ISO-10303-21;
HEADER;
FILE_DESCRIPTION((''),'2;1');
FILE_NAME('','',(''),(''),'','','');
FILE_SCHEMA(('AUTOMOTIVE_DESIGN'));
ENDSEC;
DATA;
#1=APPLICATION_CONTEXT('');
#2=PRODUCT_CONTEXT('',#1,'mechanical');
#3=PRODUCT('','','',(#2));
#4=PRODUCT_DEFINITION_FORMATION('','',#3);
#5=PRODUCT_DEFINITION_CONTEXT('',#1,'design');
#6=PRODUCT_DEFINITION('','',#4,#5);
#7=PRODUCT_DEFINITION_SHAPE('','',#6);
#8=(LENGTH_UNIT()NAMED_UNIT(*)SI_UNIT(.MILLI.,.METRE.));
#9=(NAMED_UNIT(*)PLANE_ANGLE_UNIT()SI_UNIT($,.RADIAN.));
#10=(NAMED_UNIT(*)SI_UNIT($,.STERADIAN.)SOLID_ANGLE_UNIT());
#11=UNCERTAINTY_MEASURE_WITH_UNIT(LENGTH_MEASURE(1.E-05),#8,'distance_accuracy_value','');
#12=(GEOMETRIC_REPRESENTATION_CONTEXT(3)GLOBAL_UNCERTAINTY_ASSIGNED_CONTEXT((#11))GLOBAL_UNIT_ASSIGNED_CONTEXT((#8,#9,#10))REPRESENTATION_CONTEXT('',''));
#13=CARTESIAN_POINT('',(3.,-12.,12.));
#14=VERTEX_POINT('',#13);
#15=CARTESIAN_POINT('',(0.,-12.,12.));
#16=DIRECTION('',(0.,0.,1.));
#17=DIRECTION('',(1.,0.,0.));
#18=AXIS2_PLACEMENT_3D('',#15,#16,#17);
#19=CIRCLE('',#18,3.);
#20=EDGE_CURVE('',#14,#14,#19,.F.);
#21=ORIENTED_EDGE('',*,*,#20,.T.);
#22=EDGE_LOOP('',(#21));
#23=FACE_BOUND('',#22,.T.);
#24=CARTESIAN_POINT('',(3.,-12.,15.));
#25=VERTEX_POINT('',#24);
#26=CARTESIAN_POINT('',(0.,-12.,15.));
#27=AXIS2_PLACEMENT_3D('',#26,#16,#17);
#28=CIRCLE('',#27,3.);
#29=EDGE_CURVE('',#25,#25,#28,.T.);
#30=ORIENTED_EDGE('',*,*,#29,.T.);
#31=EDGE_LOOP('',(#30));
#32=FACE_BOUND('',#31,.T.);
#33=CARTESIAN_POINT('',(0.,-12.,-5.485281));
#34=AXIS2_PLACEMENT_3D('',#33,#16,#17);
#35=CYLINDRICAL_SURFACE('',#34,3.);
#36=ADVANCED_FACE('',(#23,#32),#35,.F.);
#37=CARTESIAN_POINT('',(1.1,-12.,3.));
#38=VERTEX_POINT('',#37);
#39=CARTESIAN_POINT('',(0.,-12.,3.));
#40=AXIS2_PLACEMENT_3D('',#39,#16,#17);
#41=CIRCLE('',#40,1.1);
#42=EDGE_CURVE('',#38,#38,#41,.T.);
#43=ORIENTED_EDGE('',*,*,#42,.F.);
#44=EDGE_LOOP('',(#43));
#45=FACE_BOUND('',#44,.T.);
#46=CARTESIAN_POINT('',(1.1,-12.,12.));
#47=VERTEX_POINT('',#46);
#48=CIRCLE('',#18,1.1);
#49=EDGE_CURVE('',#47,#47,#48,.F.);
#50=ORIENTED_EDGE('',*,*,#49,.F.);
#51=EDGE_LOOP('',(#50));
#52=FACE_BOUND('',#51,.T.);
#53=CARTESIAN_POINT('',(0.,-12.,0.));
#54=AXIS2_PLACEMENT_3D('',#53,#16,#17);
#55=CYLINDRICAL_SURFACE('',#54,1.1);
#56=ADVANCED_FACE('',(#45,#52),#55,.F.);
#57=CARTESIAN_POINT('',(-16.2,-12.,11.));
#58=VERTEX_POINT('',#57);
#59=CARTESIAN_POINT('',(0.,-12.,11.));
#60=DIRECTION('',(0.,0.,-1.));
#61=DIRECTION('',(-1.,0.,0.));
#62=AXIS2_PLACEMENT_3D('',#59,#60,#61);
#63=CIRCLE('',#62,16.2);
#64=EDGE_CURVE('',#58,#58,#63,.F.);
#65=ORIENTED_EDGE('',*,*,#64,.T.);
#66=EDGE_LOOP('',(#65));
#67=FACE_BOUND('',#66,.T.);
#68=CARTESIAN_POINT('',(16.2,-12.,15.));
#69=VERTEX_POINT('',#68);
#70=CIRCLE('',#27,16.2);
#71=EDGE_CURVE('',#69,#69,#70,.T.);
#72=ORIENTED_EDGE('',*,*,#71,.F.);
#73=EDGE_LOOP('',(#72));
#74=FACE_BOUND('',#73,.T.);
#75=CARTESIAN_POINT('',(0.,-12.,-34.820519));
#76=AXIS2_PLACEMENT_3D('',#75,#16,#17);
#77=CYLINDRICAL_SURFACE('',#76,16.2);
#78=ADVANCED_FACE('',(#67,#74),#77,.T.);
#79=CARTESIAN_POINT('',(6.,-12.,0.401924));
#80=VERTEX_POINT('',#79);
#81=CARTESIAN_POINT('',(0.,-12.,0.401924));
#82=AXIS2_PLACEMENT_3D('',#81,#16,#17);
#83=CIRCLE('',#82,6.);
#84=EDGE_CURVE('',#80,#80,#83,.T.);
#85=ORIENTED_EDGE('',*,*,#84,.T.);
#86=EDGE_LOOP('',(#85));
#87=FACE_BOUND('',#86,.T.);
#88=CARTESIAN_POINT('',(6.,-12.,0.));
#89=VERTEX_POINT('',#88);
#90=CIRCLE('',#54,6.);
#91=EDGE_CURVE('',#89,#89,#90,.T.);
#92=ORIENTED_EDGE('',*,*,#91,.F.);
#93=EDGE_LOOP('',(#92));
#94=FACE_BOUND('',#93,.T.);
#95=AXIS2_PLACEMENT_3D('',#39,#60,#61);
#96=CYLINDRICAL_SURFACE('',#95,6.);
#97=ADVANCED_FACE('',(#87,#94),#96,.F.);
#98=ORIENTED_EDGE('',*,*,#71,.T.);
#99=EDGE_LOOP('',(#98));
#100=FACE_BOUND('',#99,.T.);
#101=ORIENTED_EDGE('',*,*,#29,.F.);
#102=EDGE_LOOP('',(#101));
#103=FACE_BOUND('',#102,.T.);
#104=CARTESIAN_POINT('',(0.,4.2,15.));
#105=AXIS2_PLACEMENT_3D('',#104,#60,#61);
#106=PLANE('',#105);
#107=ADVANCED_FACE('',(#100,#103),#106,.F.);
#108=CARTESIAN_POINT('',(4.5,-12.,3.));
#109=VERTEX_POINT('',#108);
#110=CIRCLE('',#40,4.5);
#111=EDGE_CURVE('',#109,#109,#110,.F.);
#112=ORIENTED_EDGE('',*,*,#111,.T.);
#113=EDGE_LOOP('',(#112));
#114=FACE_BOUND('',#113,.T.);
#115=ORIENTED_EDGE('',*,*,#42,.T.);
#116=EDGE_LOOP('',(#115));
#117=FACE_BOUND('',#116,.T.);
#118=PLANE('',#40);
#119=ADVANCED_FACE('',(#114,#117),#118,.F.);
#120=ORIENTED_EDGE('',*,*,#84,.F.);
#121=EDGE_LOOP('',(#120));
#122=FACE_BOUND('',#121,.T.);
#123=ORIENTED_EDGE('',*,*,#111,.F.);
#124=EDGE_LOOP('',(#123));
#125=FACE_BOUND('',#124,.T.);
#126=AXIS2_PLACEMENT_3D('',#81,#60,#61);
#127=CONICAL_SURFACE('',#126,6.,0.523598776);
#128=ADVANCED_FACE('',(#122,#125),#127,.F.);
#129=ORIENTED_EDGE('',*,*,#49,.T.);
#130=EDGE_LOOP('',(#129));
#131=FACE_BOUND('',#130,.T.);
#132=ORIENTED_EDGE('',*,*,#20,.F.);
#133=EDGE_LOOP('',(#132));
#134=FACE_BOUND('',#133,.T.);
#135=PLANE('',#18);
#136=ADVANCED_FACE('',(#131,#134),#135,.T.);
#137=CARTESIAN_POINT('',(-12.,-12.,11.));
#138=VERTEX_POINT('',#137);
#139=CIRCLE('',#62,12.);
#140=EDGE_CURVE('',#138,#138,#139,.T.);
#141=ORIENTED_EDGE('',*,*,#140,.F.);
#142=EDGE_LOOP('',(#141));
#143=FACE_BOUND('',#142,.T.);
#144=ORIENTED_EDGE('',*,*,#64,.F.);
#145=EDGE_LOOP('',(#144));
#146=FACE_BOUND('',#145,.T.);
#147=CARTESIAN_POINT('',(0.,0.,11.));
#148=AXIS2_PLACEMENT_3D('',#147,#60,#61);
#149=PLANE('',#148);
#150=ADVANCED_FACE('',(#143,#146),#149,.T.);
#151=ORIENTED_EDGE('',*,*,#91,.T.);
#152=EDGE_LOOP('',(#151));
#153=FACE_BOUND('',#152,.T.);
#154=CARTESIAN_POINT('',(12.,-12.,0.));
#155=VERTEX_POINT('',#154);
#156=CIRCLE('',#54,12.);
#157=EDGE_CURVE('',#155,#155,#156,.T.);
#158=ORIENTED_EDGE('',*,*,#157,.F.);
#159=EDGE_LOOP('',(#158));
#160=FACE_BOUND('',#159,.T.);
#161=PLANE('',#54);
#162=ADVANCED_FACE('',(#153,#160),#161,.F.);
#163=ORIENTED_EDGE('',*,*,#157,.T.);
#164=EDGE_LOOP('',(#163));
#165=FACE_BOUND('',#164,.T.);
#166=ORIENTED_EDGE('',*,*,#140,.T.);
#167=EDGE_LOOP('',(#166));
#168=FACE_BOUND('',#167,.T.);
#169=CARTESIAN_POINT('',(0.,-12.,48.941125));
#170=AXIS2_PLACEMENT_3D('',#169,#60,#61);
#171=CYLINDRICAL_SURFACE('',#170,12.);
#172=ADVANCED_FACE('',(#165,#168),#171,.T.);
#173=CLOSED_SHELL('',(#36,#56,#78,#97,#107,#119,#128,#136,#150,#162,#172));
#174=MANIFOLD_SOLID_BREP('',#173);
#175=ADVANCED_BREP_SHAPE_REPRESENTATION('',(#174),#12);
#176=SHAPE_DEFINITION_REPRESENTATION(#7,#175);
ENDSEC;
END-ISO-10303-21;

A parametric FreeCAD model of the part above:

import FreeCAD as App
import Part
import Sketcher


def edges_at(feature, points):
    """Names of the edges that pass closest to the given points."""
    edges = feature.Shape.Edges
    near = lambda p: min(range(len(edges)), key=lambda i: edges[i].distToShape(Part.Vertex(*p))[0])
    return sorted({f"Edge{near(p) + 1}" for p in points})

doc = App.newDocument("Part")
params = doc.addObject("Spreadsheet::Sheet", "Params")
for row, (alias, value) in enumerate([
    ("sketch1_diameter", "24 mm"),
    ("pad1_length", "15 mm"),
    ("sketch2_diameter", "32.4 mm"),
    ("pad2_length", "4 mm"),
    ("sketch3_diameter", "12 mm"),
    ("pocket1_length", "3 mm"),
    ("chamfer_size", "1.5 mm"),
    ("chamfer_size2", "2.598076 mm"),
    ("sketch4_diameter", "2.2 mm"),
    ("sketch5_diameter", "6 mm"),
    ("pocket3_length", "3 mm"),
], start=1):
    params.set(f"A{row}", alias)
    params.set(f"B{row}", "=" + value)
    params.setAlias(f"B{row}", alias)

body = doc.addObject("PartDesign::Body", "Body")

# Sketch on XY plane
sketch1 = body.newObject("Sketcher::SketchObject", "Sketch")
sketch1.AttachmentSupport = (doc.getObject("XY_Plane"), [""])
sketch1.MapMode = "FlatFace"
sketch1.addGeometry(Part.Circle(App.Vector(0, -12, 0), App.Vector(0, 0, 1), 12), False)
sketch1.addConstraint(Sketcher.Constraint("PointOnObject", 0, 3, -2))
sketch1.addConstraint(Sketcher.Constraint("Diameter", 0, 24.0))
sketch1.addConstraint(Sketcher.Constraint("DistanceY", 0, 3, -1, 1, 12.0))
sketch1.setExpression("Constraints[1]", "Params.sketch1_diameter")
pad1 = body.newObject("PartDesign::Pad", "Pad")
pad1.Profile = sketch1
pad1.setExpression("Length", "Params.pad1_length")

# Sketch on XY plane
sketch2 = body.newObject("Sketcher::SketchObject", "Sketch001")
sketch2.AttachmentSupport = (doc.getObject("XY_Plane"), [""])
sketch2.MapMode = "FlatFace"
sketch2.AttachmentOffset = App.Placement(App.Vector(0, 0, 15), App.Rotation())
sketch2.addGeometry(Part.Circle(App.Vector(0, -12, 0), App.Vector(0, 0, 1), 16), False)
sketch2.addConstraint(Sketcher.Constraint("PointOnObject", 0, 3, -2))
sketch2.addConstraint(Sketcher.Constraint("Diameter", 0, 32.4))
sketch2.addConstraint(Sketcher.Constraint("DistanceY", 0, 3, -1, 1, 12.0))
sketch2.setExpression("Constraints[1]", "Params.sketch2_diameter")
pad2 = body.newObject("PartDesign::Pad", "Pad001")
pad2.Profile = sketch2
pad2.setExpression("Length", "Params.pad2_length")
pad2.Reversed = True

# Sketch on XY plane
sketch3 = body.newObject("Sketcher::SketchObject", "Sketch002")
sketch3.AttachmentSupport = (doc.getObject("XY_Plane"), [""])
sketch3.MapMode = "FlatFace"
sketch3.addGeometry(Part.Circle(App.Vector(0, -12, 0), App.Vector(0, 0, 1), 6), False)
sketch3.addConstraint(Sketcher.Constraint("PointOnObject", 0, 3, -2))
sketch3.addConstraint(Sketcher.Constraint("Diameter", 0, 12.0))
sketch3.addConstraint(Sketcher.Constraint("DistanceY", 0, 3, -1, 1, 12.0))
sketch3.setExpression("Constraints[1]", "Params.sketch3_diameter")
pocket1 = body.newObject("PartDesign::Pocket", "Pocket")
pocket1.Profile = sketch3
pocket1.setExpression("Length", "Params.pocket1_length")
pocket1.Reversed = True
doc.recompute()

chamfer = body.newObject("PartDesign::Chamfer", "Chamfer")
chamfer.Base = (pocket1, edges_at(pocket1, [(-6, -12, 3)]))
chamfer.ChamferType = "Two distances"
chamfer.setExpression("Size", "Params.chamfer_size")
chamfer.setExpression("Size2", "Params.chamfer_size2")
chamfer.FlipDirection = True

# Sketch on XY plane
sketch4 = body.newObject("Sketcher::SketchObject", "Sketch003")
sketch4.AttachmentSupport = (doc.getObject("XY_Plane"), [""])
sketch4.MapMode = "FlatFace"
sketch4.AttachmentOffset = App.Placement(App.Vector(0, 0, 15), App.Rotation())
sketch4.addGeometry(Part.Circle(App.Vector(0, -12, 0), App.Vector(0, 0, 1), 1.1), False)
sketch4.addConstraint(Sketcher.Constraint("PointOnObject", 0, 3, -2))
sketch4.addConstraint(Sketcher.Constraint("Diameter", 0, 2.2))
sketch4.addConstraint(Sketcher.Constraint("DistanceY", 0, 3, -1, 1, 12.0))
sketch4.setExpression("Constraints[1]", "Params.sketch4_diameter")
pocket2 = body.newObject("PartDesign::Pocket", "Pocket001")
pocket2.Profile = sketch4
pocket2.Type = "ThroughAll"

# Sketch on XY plane
sketch5 = body.newObject("Sketcher::SketchObject", "Sketch004")
sketch5.AttachmentSupport = (doc.getObject("XY_Plane"), [""])
sketch5.MapMode = "FlatFace"
sketch5.AttachmentOffset = App.Placement(App.Vector(0, 0, 15), App.Rotation())
sketch5.addGeometry(Part.Circle(App.Vector(0, -12, 0), App.Vector(0, 0, 1), 3), False)
sketch5.addConstraint(Sketcher.Constraint("PointOnObject", 0, 3, -2))
sketch5.addConstraint(Sketcher.Constraint("Diameter", 0, 6.0))
sketch5.addConstraint(Sketcher.Constraint("DistanceY", 0, 3, -1, 1, 12.0))
sketch5.setExpression("Constraints[1]", "Params.sketch5_diameter")
pocket3 = body.newObject("PartDesign::Pocket", "Pocket002")
pocket3.Profile = sketch5
pocket3.setExpression("Length", "Params.pocket3_length")

doc.recompute()
